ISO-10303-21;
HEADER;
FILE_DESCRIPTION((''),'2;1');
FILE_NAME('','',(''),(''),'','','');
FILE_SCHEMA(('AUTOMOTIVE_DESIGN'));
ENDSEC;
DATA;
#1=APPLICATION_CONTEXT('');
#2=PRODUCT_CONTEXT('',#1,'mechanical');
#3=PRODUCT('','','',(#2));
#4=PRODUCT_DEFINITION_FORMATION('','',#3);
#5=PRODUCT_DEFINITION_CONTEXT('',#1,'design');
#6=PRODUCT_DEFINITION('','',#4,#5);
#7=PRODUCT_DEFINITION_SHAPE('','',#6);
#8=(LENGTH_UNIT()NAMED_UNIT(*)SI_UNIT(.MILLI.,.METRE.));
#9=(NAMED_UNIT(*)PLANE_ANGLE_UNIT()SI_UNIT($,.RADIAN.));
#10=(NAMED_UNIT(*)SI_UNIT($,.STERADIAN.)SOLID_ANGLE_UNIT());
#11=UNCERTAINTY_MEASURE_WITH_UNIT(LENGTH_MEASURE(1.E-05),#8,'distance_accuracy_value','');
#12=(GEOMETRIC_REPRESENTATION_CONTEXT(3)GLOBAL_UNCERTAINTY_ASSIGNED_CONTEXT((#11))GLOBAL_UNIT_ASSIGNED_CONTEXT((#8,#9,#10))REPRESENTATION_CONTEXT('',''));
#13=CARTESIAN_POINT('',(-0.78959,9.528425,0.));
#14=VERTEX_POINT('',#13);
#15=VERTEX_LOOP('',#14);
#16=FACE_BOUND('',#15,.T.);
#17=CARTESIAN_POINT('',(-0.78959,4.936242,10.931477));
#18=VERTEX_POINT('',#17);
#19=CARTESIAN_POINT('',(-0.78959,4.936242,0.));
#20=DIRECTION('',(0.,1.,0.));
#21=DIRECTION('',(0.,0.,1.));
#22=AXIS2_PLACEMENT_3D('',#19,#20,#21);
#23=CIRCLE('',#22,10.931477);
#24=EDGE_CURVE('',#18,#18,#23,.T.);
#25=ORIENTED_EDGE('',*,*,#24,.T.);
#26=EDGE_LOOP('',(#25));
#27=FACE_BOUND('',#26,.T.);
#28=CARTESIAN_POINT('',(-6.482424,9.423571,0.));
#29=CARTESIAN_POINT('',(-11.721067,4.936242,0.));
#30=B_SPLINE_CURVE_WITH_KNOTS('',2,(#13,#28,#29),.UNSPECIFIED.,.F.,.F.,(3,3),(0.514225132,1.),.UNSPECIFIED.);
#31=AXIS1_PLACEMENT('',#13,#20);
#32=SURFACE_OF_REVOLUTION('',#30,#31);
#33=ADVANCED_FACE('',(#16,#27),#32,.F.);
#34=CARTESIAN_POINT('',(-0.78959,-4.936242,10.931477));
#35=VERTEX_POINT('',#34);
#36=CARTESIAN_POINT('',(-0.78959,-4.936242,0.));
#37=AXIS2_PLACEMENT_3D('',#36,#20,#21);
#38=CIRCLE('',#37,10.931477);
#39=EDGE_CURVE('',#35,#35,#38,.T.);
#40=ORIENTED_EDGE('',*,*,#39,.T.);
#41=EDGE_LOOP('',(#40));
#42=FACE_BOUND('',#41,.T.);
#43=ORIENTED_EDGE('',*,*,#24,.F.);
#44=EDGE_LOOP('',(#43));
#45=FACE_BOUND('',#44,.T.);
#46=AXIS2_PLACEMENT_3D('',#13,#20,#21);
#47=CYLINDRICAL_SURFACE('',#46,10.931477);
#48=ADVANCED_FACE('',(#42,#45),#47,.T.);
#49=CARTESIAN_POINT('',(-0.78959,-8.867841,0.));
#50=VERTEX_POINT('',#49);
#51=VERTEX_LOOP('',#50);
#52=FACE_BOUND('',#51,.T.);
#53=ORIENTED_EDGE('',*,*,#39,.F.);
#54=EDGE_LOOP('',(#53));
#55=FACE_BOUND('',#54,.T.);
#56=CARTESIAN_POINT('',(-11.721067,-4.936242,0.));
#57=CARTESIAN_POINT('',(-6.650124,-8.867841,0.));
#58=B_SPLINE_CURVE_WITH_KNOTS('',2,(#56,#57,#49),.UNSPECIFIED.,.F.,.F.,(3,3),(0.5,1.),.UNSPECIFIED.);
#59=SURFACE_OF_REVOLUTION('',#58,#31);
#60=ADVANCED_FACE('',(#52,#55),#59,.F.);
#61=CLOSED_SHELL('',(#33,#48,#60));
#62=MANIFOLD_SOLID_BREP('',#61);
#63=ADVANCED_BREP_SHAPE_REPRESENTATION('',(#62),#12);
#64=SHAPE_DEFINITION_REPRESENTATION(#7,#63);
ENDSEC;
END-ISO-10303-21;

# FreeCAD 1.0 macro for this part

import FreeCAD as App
import Part
import Sketcher
from FreeCAD import Vector

doc = App.newDocument("Part")
body = doc.addObject("PartDesign::Body", "Body")

# Sketch on XY plane
sketch1 = body.newObject("Sketcher::SketchObject", "Sketch")
sketch1.AttachmentSupport = (doc.getObject("XY_Plane"), [""])
sketch1.MapMode = "FlatFace"
sketch1.addGeometry(Part.LineSegment(Vector(-11.721067, 4.936242, 0), Vector(-11.721067, -4.936242, 0)), False)
sketch1.addGeometry(Part.BSplineCurve([Vector(-0.78959, -8.867841, 0), Vector(-6.650124, -8.867841, 0), Vector(-11.721067, -4.936242, 0)], [3, 3], [0.5, 1], False, 2, [1, 1, 1], False), False)
sketch1.addGeometry(Part.LineSegment(Vector(-0.78959, -8.867841, 0), Vector(-0.78959, 9.528425, 0)), False)
sketch1.addGeometry(Part.BSplineCurve([Vector(-0.78959, 9.528425, 0), Vector(-6.482424, 9.423571, 0), Vector(-11.721067, 4.936242, 0)], [3, 3], [0.514225132, 1], False, 2, [1, 1, 1], False), False)
sketch1.addGeometry(Part.LineSegment(Vector(-0.78959, 9.528425, 0), Vector(-0.78959, -8.867841, 0)), True)  # axis
sketch1.addConstraint(Sketcher.Constraint("Block", 1))
sketch1.addConstraint(Sketcher.Constraint("Block", 3))
sketch1.addConstraint(Sketcher.Constraint("Coincident", 0, 2, 1, 2))
sketch1.addConstraint(Sketcher.Constraint("Coincident", 1, 1, 2, 1))
sketch1.addConstraint(Sketcher.Constraint("Coincident", 2, 2, 3, 1))
sketch1.addConstraint(Sketcher.Constraint("Coincident", 3, 2, 0, 1))
sketch1.addConstraint(Sketcher.Constraint("Vertical", 4))
sketch1.addConstraint(Sketcher.Constraint("Coincident", 4, 1, 2, 2))
sketch1.addConstraint(Sketcher.Constraint("Equal", 2, 4))
revolution = body.newObject("PartDesign::Revolution", "Revolution")
revolution.Profile = sketch1
revolution.ReferenceAxis = (sketch1, ["Axis0"])
revolution.Angle = 360

doc.recompute()
